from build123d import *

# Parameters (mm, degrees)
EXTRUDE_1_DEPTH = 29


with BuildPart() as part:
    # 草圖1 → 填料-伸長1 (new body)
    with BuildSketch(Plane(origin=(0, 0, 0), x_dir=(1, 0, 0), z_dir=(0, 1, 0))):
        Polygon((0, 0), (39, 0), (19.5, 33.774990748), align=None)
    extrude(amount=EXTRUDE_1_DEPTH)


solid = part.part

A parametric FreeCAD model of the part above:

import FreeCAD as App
import Part
import Sketcher

V = App.Vector
Q = App.Units.Quantity


def add_polygon(sketch, points):
    """Adds a closed chain of lines whose ends are joined by coincident constraints."""
    first, n = sketch.GeometryCount, len(points)
    for a, b in zip(points, points[1:] + points[:1]):
        sketch.addGeometry(Part.LineSegment(App.Vector(*a, 0), App.Vector(*b, 0)), False)
    for i in range(n):
        sketch.addConstraint(Sketcher.Constraint("Coincident", first + i, 2, first + (i + 1) % n, 1))

doc = App.newDocument("Part")
body = doc.addObject("PartDesign::Body", "Body")

# Sketch on XZ plane
sketch1 = body.newObject("Sketcher::SketchObject", "Sketch")
sketch1.AttachmentSupport = (doc.getObject("XZ_Plane"), [""])
sketch1.MapMode = "FlatFace"
add_polygon(sketch1, [(0, 0), (39, 0), (19.5, -33.774991)])  # lines 0-2
sketch1.addConstraint(Sketcher.Constraint("Horizontal", 0))
sketch1.addConstraint(Sketcher.Constraint("Coincident", 2, 2, -1, 1))
sketch1.addConstraint(Sketcher.Constraint("Equal", 1, 2))
sketch1.addConstraint(Sketcher.Constraint("DistanceX", 0, 1, 0, 2, 39.0))
sketch1.addConstraint(Sketcher.Constraint("Angle", 1, Q("-120 deg")))
pad1 = body.newObject("PartDesign::Pad", "Pad")
pad1.Profile = sketch1
pad1.Length = 29
pad1.Reversed = True

doc.recompute()
